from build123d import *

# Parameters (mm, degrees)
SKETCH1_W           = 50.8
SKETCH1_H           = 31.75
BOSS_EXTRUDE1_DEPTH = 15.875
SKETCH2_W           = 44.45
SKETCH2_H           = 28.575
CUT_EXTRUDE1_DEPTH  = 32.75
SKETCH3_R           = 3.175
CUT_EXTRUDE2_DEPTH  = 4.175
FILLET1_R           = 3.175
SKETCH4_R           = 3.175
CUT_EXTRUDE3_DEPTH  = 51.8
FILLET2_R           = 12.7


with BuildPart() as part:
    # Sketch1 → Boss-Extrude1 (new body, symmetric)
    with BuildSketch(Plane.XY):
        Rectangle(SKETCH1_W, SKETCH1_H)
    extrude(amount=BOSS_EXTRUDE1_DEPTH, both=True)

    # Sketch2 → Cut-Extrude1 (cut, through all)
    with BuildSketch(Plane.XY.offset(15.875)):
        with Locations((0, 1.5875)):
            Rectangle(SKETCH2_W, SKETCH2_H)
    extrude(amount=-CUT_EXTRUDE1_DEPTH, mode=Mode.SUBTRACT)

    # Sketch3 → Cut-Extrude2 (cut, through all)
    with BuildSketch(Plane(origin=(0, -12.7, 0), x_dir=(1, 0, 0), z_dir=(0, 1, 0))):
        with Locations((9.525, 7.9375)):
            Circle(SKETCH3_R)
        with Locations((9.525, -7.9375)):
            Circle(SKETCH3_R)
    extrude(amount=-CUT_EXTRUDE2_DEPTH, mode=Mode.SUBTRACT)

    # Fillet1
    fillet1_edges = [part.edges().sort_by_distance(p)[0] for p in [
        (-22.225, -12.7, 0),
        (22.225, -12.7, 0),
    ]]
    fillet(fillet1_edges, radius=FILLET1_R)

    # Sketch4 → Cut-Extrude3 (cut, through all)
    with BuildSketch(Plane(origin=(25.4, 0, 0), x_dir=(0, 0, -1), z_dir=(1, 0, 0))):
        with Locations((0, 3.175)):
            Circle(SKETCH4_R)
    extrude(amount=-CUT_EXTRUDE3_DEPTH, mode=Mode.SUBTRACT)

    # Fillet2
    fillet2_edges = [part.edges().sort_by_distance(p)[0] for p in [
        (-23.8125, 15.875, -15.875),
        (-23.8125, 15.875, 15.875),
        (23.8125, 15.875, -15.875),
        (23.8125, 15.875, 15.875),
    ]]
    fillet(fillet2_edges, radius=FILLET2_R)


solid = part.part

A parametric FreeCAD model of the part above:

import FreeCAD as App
import Part
import Sketcher
from FreeCAD import Vector
Q = App.Units.Quantity


def edges_at(feature, points):
    """Names of the edges that pass closest to the given points."""
    edges = feature.Shape.Edges
    near = lambda p: min(range(len(edges)), key=lambda i: edges[i].distToShape(Part.Vertex(*p))[0])
    return sorted({f"Edge{near(p) + 1}" for p in points})


def add_polygon(sketch, points):
    """Adds a closed chain of lines whose ends are joined by coincident constraints."""
    first, n = sketch.GeometryCount, len(points)
    for a, b in zip(points, points[1:] + points[:1]):
        sketch.addGeometry(Part.LineSegment(App.Vector(*a, 0), App.Vector(*b, 0)), False)
    for i in range(n):
        sketch.addConstraint(Sketcher.Constraint("Coincident", first + i, 2, first + (i + 1) % n, 1))

doc = App.newDocument("Part")
body = doc.addObject("PartDesign::Body", "Body")

sketch1 = body.newObject("Sketcher::SketchObject", "Sketch")
sketch1.AttachmentSupport = (doc.getObject("XY_Plane"), [""])
sketch1.MapMode = "FlatFace"
add_polygon(sketch1, [(-25, 16), (-25, -16), (25, -16), (25, 16)])
sketch1.addConstraint(Sketcher.Constraint("Vertical", 0))
sketch1.addConstraint(Sketcher.Constraint("Horizontal", 1))
sketch1.addConstraint(Sketcher.Constraint("Vertical", 2))
sketch1.addConstraint(Sketcher.Constraint("Horizontal", 3))
sketch1.addConstraint(Sketcher.Constraint("Symmetric", 0, 2, 2, 2, -1, 1))
sketch1.addConstraint(Sketcher.Constraint("DistanceX", 1, 1, 1, 2, Q("2 in")))
sketch1.addConstraint(Sketcher.Constraint("DistanceY", 0, 2, 0, 1, Q("1.25 in")))
pad1 = body.newObject("PartDesign::Pad", "Pad")
pad1.Profile = sketch1
pad1.Length = Q("1.25 in")
pad1.Midplane = True

sketch2 = body.newObject("Sketcher::SketchObject", "Sketch001")
sketch2.AttachmentSupport = (doc.getObject("XY_Plane"), [""])
sketch2.MapMode = "FlatFace"
sketch2.AttachmentOffset = App.Placement(Vector(0, 0, 0.625 * 25.4), App.Rotation())
add_polygon(sketch2, [(-22, 16), (-22, -13), (22, -13), (22, 16)])
sketch2.addConstraint(Sketcher.Constraint("Vertical", 0))
sketch2.addConstraint(Sketcher.Constraint("Horizontal", 1))
sketch2.addConstraint(Sketcher.Constraint("Vertical", 2))
sketch2.addConstraint(Sketcher.Constraint("Horizontal", 3))
sketch2.addConstraint(Sketcher.Constraint("DistanceX", 1, 1, 1, 2, Q("1.75 in")))
sketch2.addConstraint(Sketcher.Constraint("DistanceY", 0, 2, -1, 1, Q("0.5 in")))
sketch2.addConstraint(Sketcher.Constraint("DistanceY", 0, 2, 0, 1, Q("1.125 in")))
sketch2.addConstraint(Sketcher.Constraint("DistanceX", 0, 2, -1, 1, Q("0.875 in")))
pocket1 = body.newObject("PartDesign::Pocket", "Pocket")
pocket1.Profile = sketch2
pocket1.Type = "ThroughAll"

sketch3 = body.newObject("Sketcher::SketchObject", "Sketch002")
sketch3.AttachmentSupport = (doc.getObject("XZ_Plane"), [""])
sketch3.MapMode = "FlatFace"
sketch3.AttachmentOffset = App.Placement(Vector(0, 0, 0.5 * 25.4), App.Rotation())
sketch3.addGeometry(Part.Circle(Vector(9.5, -7.9, 0), Vector(0, 0, 1), 3.2), False)
sketch3.addGeometry(Part.Circle(Vector(9.5, 7.9, 0), Vector(0, 0, 1), 3.2), False)
sketch3.addConstraint(Sketcher.Constraint("Equal", 0, 1))
sketch3.addConstraint(Sketcher.Constraint("Symmetric", 0, 3, 1, 3, -1))
sketch3.addConstraint(Sketcher.Constraint("Diameter", 0, Q("0.25 in")))
sketch3.addConstraint(Sketcher.Constraint("DistanceX", -1, 1, 0, 3, Q("0.375 in")))
sketch3.addConstraint(Sketcher.Constraint("DistanceY", 0, 3, -1, 1, Q("0.3125 in")))
pocket2 = body.newObject("PartDesign::Pocket", "Pocket001")
pocket2.Profile = sketch3
pocket2.Type = "ThroughAll"
pocket2.Reversed = True
doc.recompute()

fillet = body.newObject("PartDesign::Fillet", "Fillet")
fillet.Base = (pocket2, edges_at(pocket2, [(-22.225, -12.7, 0), (22.225, -12.7, 0)]))
fillet.Radius = Q("0.125 in")

sketch4 = body.newObject("Sketcher::SketchObject", "Sketch003")
sketch4.AttachmentSupport = (doc.getObject("YZ_Plane"), [""])
sketch4.MapMode = "FlatFace"
sketch4.AttachmentOffset = App.Placement(Vector(0, 0, 1 * 25.4), App.Rotation())
sketch4.addGeometry(Part.Circle(Vector(3.2, 0, 0), Vector(0, 0, 1), 3.2), False)
sketch4.addConstraint(Sketcher.Constraint("PointOnObject", 0, 3, -1))
sketch4.addConstraint(Sketcher.Constraint("Diameter", 0, Q("0.25 in")))
sketch4.addConstraint(Sketcher.Constraint("DistanceX", -1, 1, 0, 3, Q("0.125 in")))
pocket3 = body.newObject("PartDesign::Pocket", "Pocket002")
pocket3.Profile = sketch4
pocket3.Type = "ThroughAll"
doc.recompute()

fillet2 = body.newObject("PartDesign::Fillet", "Fillet001")
fillet2.Base = (pocket3, edges_at(pocket3, [
    (-23.812, 15.875, -15.875),
    (-23.812, 15.875, 15.875),
    (23.812, 15.875, -15.875),
    (23.812, 15.875, 15.875),
]))
fillet2.Radius = Q("0.5 in")

doc.recompute()
